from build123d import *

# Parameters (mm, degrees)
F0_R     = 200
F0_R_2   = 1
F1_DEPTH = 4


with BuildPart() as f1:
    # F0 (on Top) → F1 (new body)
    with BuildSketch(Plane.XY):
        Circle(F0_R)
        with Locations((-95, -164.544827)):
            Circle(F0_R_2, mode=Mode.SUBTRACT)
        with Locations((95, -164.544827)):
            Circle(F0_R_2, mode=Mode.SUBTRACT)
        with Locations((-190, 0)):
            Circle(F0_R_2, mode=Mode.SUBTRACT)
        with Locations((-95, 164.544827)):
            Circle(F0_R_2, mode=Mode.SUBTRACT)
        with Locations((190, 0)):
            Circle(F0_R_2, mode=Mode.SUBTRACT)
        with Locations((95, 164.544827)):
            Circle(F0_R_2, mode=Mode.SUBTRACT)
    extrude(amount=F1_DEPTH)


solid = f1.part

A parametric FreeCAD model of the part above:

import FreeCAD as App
import Part
import Sketcher
Q = App.Units.Quantity

doc = App.newDocument("Part")
body = doc.addObject("PartDesign::Body", "Body")

# Sketch on XY plane
sketch1 = body.newObject("Sketcher::SketchObject", "Sketch")
sketch1.AttachmentSupport = (doc.getObject("XY_Plane"), [""])
sketch1.MapMode = "FlatFace"
sketch1.addGeometry(Part.Circle(App.Vector(0, 0, 0), App.Vector(0, 0, 1), 200), False)
sketch1.addGeometry(Part.Circle(App.Vector(-95, -164.5, 0), App.Vector(0, 0, 1), 1), False)
sketch1.addGeometry(Part.Circle(App.Vector(95, -164.5, 0), App.Vector(0, 0, 1), 1), False)
sketch1.addGeometry(Part.Circle(App.Vector(-190, 0, 0), App.Vector(0, 0, 1), 1), False)
sketch1.addGeometry(Part.Circle(App.Vector(-95, 164.5, 0), App.Vector(0, 0, 1), 1), False)
sketch1.addGeometry(Part.Circle(App.Vector(190, 0, 0), App.Vector(0, 0, 1), 1), False)
sketch1.addGeometry(Part.Circle(App.Vector(95, 164.5, 0), App.Vector(0, 0, 1), 1), False)
sketch1.addConstraint(Sketcher.Constraint("Coincident", 0, 3, -1, 1))
sketch1.addConstraint(Sketcher.Constraint("Equal", 1, 2))
sketch1.addConstraint(Sketcher.Constraint("Equal", 2, 3))
sketch1.addConstraint(Sketcher.Constraint("Equal", 3, 4))
sketch1.addConstraint(Sketcher.Constraint("Equal", 4, 5))
sketch1.addConstraint(Sketcher.Constraint("Equal", 5, 6))
sketch1.addConstraint(Sketcher.Constraint("Symmetric", 2, 3, 4, 3, -1, 1))
sketch1.addConstraint(Sketcher.Constraint("Symmetric", 3, 3, 5, 3, -1, 1))
sketch1.addConstraint(Sketcher.Constraint("Symmetric", 1, 3, 6, 3, -1, 1))
sketch1.addConstraint(Sketcher.Constraint("Symmetric", 1, 3, 2, 3, -2))
sketch1.addConstraint(Sketcher.Constraint("PointOnObject", 3, 3, -1))
sketch1.addConstraint(Sketcher.Constraint("Diameter", 0, Q("400 mm")))
sketch1.addConstraint(Sketcher.Constraint("Diameter", 1, Q("2 mm")))
sketch1.addConstraint(Sketcher.Constraint("DistanceX", 1, 3, -1, 1, Q("95 mm")))
sketch1.addConstraint(Sketcher.Constraint("DistanceX", 3, 3, -1, 1, Q("190 mm")))
sketch1.addConstraint(Sketcher.Constraint("DistanceY", 1, 3, -1, 1, Q("164.544827 mm")))
pad1 = body.newObject("PartDesign::Pad", "Pad")
pad1.Profile = sketch1
pad1.Length = 4

doc.recompute()
